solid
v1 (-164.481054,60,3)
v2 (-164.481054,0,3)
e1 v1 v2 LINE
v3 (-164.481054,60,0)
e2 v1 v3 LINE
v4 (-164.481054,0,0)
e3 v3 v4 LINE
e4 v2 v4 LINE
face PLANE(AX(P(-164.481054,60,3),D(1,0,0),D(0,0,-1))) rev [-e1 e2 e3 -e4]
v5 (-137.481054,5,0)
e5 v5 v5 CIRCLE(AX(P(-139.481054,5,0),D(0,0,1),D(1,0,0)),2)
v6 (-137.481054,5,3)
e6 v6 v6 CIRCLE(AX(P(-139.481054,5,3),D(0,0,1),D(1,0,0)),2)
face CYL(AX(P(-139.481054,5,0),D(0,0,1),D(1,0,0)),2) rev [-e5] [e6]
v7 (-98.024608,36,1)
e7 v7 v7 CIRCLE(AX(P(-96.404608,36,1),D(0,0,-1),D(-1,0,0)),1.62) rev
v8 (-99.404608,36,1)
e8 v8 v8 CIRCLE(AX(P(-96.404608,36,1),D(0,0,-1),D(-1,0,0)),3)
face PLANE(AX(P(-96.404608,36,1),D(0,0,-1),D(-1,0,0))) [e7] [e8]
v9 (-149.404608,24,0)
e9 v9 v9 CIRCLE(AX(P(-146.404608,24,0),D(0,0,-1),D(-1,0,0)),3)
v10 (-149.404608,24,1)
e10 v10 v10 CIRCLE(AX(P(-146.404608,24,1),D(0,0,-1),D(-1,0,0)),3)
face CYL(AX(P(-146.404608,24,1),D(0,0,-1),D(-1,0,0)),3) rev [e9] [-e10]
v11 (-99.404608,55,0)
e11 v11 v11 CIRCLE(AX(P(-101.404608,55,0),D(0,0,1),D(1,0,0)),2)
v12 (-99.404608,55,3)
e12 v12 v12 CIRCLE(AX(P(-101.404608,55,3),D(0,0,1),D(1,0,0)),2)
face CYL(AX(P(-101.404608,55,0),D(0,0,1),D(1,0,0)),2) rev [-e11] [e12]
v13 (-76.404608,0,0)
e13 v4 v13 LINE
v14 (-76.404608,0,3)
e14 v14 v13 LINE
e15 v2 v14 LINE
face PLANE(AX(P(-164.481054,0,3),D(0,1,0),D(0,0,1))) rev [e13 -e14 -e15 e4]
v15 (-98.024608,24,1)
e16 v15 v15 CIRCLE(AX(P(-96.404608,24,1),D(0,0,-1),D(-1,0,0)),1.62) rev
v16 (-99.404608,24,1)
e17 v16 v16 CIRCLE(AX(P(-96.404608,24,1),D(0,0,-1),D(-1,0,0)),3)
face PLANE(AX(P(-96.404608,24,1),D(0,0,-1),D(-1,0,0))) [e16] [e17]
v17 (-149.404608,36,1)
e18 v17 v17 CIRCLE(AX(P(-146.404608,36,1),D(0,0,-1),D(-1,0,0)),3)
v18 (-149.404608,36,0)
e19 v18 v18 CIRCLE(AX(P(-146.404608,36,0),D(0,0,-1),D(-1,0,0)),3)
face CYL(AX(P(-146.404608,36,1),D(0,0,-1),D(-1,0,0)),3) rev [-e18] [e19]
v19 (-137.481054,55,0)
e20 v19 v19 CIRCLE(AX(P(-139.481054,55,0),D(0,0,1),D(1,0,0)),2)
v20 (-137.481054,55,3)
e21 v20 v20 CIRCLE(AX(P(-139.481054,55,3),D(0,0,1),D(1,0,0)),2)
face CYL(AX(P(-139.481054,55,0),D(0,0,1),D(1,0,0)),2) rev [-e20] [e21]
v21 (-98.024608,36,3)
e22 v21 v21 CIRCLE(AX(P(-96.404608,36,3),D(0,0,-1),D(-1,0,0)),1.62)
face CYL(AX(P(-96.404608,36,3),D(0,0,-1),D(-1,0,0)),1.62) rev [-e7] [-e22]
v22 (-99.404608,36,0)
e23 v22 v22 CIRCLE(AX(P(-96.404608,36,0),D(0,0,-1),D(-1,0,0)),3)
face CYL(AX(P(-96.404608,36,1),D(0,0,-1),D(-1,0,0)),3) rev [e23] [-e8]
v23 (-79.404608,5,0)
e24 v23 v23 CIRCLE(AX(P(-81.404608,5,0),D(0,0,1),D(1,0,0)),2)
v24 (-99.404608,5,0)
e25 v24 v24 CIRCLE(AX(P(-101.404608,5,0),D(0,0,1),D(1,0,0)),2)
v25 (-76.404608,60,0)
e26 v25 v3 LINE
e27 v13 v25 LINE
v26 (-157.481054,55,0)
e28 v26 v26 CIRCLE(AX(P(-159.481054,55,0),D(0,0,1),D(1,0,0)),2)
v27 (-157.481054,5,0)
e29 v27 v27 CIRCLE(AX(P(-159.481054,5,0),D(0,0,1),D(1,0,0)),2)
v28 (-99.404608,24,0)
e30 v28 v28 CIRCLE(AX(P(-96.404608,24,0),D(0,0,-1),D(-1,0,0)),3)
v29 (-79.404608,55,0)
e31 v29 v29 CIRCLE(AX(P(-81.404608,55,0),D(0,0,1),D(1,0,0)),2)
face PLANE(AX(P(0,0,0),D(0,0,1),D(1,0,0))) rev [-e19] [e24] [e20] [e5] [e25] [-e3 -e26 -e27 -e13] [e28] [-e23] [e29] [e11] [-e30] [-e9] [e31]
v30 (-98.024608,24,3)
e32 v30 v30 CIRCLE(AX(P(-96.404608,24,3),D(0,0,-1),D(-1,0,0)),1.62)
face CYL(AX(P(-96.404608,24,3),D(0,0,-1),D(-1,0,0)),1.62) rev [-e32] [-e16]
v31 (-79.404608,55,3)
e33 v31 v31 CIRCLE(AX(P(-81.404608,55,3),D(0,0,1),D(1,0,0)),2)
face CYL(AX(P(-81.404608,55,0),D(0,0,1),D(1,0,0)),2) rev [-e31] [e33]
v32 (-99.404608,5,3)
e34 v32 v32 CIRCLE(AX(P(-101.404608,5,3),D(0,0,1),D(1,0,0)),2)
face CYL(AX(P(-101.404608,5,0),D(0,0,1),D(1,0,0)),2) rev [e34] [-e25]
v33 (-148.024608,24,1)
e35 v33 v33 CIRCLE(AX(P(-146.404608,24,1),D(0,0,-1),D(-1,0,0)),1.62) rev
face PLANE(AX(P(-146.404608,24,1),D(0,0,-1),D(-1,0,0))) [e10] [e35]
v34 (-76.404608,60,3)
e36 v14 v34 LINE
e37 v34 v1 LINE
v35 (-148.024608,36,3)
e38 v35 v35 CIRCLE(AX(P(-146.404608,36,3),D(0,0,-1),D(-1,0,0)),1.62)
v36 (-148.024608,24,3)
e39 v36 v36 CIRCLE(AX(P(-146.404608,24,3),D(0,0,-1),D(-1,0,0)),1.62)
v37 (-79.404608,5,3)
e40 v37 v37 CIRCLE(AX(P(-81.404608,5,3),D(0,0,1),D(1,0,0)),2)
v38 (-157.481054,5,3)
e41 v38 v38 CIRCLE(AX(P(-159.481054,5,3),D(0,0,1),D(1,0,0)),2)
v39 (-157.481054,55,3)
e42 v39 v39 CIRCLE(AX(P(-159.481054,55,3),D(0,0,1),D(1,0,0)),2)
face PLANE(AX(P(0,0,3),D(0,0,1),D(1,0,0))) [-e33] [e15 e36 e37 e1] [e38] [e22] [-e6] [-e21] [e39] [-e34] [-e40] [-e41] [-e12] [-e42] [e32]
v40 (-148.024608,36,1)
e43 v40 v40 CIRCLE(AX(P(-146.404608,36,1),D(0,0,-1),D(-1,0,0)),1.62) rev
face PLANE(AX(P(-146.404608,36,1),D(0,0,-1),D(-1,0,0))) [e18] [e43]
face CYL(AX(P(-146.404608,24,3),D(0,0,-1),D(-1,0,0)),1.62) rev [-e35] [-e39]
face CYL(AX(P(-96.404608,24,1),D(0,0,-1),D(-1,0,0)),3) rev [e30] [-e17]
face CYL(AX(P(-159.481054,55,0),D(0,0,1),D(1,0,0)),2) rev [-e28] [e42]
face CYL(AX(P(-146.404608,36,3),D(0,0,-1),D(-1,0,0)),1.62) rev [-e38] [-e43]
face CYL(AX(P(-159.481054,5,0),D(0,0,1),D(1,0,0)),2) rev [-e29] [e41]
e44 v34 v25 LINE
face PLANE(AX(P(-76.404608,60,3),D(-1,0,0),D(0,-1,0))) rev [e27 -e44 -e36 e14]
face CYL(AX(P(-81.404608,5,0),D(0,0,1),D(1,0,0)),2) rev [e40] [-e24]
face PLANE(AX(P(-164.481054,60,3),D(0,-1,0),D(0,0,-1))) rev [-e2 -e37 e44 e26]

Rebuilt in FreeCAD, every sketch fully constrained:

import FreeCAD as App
import Part
import Sketcher

V = App.Vector
Q = App.Units.Quantity


def add_polygon(sketch, points):
    """Adds a closed chain of lines whose ends are joined by coincident constraints."""
    first, n = sketch.GeometryCount, len(points)
    for a, b in zip(points, points[1:] + points[:1]):
        sketch.addGeometry(Part.LineSegment(App.Vector(*a, 0), App.Vector(*b, 0)), False)
    for i in range(n):
        sketch.addConstraint(Sketcher.Constraint("Coincident", first + i, 2, first + (i + 1) % n, 1))

doc = App.newDocument("Part")
params = doc.addObject("Spreadsheet::Sheet", "Params")
for row, (alias, value) in enumerate([
    ("sketch1_height", "60 mm"),
    ("pad1_length", "3 mm"),
    ("sketch2_diameter", "4 mm"),
    ("pocket1_length", "3 mm"),
    ("sketch3_diameter", "3.24 mm"),
    ("pocket2_length", "3 mm"),
    ("sketch4_diameter", "6 mm"),
    ("pocket3_length", "1 mm"),
], start=1):
    params.set(f"A{row}", alias)
    params.set(f"B{row}", "=" + value)
    params.setAlias(f"B{row}", alias)

body = doc.addObject("PartDesign::Body", "Body")

# Sketch on XY plane
sketch1 = body.newObject("Sketcher::SketchObject", "Sketch")
sketch1.AttachmentSupport = (doc.getObject("XY_Plane"), [""])
sketch1.MapMode = "FlatFace"
add_polygon(sketch1, [(-164, 60), (-164, 0), (-76, 0), (-76, 60)])  # lines 0-3
sketch1.addConstraint([
    Sketcher.Constraint("Vertical", 0),
    Sketcher.Constraint("Horizontal", 1),
    Sketcher.Constraint("Vertical", 2),
    Sketcher.Constraint("Horizontal", 3),
    Sketcher.Constraint("PointOnObject", 0, 2, -1),
    Sketcher.Constraint("DistanceY", 0, 2, 0, 1, Q("60 mm")),
    Sketcher.Constraint("DistanceX", 1, 1, 1, 2, Q("88.076447 mm")),
    Sketcher.Constraint("DistanceX", 0, 2, -1, 1, Q("164.481054 mm")),
])
sketch1.setExpression("Constraints[9]", "Params.sketch1_height")
pad1 = body.newObject("PartDesign::Pad", "Pad")
pad1.Profile = sketch1
pad1.setExpression("Length", "Params.pad1_length")

# Sketch on XY plane
sketch2 = body.newObject("Sketcher::SketchObject", "Sketch001")
sketch2.AttachmentSupport = (doc.getObject("XY_Plane"), [""])
sketch2.MapMode = "FlatFace"
sketch2.AttachmentOffset = App.Placement(V(0, 0, 3), App.Rotation())
sketch2.addGeometry([
    Part.Circle(V(-159.5, 5, 0), V(0, 0, 1), 2),  # 0
    Part.Circle(V(-159.5, 55, 0), V(0, 0, 1), 2),  # 1
    Part.Circle(V(-139.5, 5, 0), V(0, 0, 1), 2),  # 2
    Part.Circle(V(-139.5, 55, 0), V(0, 0, 1), 2),  # 3
    Part.Circle(V(-81.4, 5, 0), V(0, 0, 1), 2),  # 4
    Part.Circle(V(-81.4, 55, 0), V(0, 0, 1), 2),  # 5
    Part.Circle(V(-101.4, 55, 0), V(0, 0, 1), 2),  # 6
    Part.Circle(V(-101.4, 5, 0), V(0, 0, 1), 2),  # 7
], False)
sketch2.addConstraint([
    Sketcher.Constraint("Equal", 0, 1),
    Sketcher.Constraint("Equal", 1, 2),
    Sketcher.Constraint("Equal", 2, 3),
    Sketcher.Constraint("Equal", 3, 4),
    Sketcher.Constraint("Equal", 4, 5),
    Sketcher.Constraint("Equal", 5, 6),
    Sketcher.Constraint("Equal", 6, 7),
    Sketcher.Constraint("Horizontal", 0, 3, 2, 3),
    Sketcher.Constraint("Horizontal", 1, 3, 3, 3),
    Sketcher.Constraint("Horizontal", 2, 3, 4, 3),
    Sketcher.Constraint("Horizontal", 3, 3, 5, 3),
    Sketcher.Constraint("Horizontal", 5, 3, 6, 3),
    Sketcher.Constraint("Horizontal", 4, 3, 7, 3),
    Sketcher.Constraint("Vertical", 0, 3, 1, 3),
    Sketcher.Constraint("Vertical", 2, 3, 3, 3),
    Sketcher.Constraint("Vertical", 4, 3, 5, 3),
    Sketcher.Constraint("Vertical", 6, 3, 7, 3),
    Sketcher.Constraint("Diameter", 0, Q("4 mm")),
    Sketcher.Constraint("DistanceY", -1, 1, 0, 3, Q("5 mm")),
    Sketcher.Constraint("DistanceY", -1, 1, 1, 3, Q("55 mm")),
    Sketcher.Constraint("DistanceX", 0, 3, 2, 3, Q("20 mm")),
    Sketcher.Constraint("DistanceX", 6, 3, 5, 3, Q("20 mm")),
    Sketcher.Constraint("DistanceX", 0, 3, -1, 1, Q("159.481054 mm")),
    Sketcher.Constraint("DistanceX", 4, 3, -1, 1, Q("81.404608 mm")),
])
sketch2.setExpression("Constraints[17]", "Params.sketch2_diameter")
pocket1 = body.newObject("PartDesign::Pocket", "Pocket")
pocket1.Profile = sketch2
pocket1.setExpression("Length", "Params.pocket1_length")

# Sketch on XY plane
sketch3 = body.newObject("Sketcher::SketchObject", "Sketch002")
sketch3.AttachmentSupport = (doc.getObject("XY_Plane"), [""])
sketch3.MapMode = "FlatFace"
sketch3.addGeometry([
    Part.Circle(V(-96.4, 36, 0), V(0, 0, 1), 1.6),
    Part.Circle(V(-96.4, 24, 0), V(0, 0, 1), 1.6),
    Part.Circle(V(-146.4, 36, 0), V(0, 0, 1), 1.6),
    Part.Circle(V(-146.4, 24, 0), V(0, 0, 1), 1.6),
], False)
sketch3.addConstraint([
    Sketcher.Constraint("Equal", 0, 1),
    Sketcher.Constraint("Equal", 1, 2),
    Sketcher.Constraint("Equal", 2, 3),
    Sketcher.Constraint("Horizontal", 0, 3, 2, 3),
    Sketcher.Constraint("Horizontal", 1, 3, 3, 3),
    Sketcher.Constraint("Vertical", 0, 3, 1, 3),
    Sketcher.Constraint("Vertical", 2, 3, 3, 3),
    Sketcher.Constraint("Diameter", 0, Q("3.24 mm")),
    Sketcher.Constraint("DistanceY", -1, 1, 0, 3, Q("36 mm")),
    Sketcher.Constraint("DistanceY", -1, 1, 1, 3, Q("24 mm")),
    Sketcher.Constraint("DistanceX", 2, 3, 0, 3, Q("50 mm")),
    Sketcher.Constraint("DistanceX", 0, 3, -1, 1, Q("96.404608 mm")),
])
sketch3.setExpression("Constraints[7]", "Params.sketch3_diameter")
pocket2 = body.newObject("PartDesign::Pocket", "Pocket001")
pocket2.Profile = sketch3
pocket2.setExpression("Length", "Params.pocket2_length")
pocket2.Reversed = True

# Sketch on XY plane
sketch4 = body.newObject("Sketcher::SketchObject", "Sketch003")
sketch4.AttachmentSupport = (doc.getObject("XY_Plane"), [""])
sketch4.MapMode = "FlatFace"
sketch4.addGeometry([
    Part.Circle(V(-96.4, 36, 0), V(0, 0, 1), 3),
    Part.Circle(V(-96.4, 24, 0), V(0, 0, 1), 3),
    Part.Circle(V(-146.4, 36, 0), V(0, 0, 1), 3),
    Part.Circle(V(-146.4, 24, 0), V(0, 0, 1), 3),
], False)
sketch4.addConstraint([
    Sketcher.Constraint("Equal", 0, 1),
    Sketcher.Constraint("Equal", 1, 2),
    Sketcher.Constraint("Equal", 2, 3),
    Sketcher.Constraint("Horizontal", 0, 3, 2, 3),
    Sketcher.Constraint("Horizontal", 1, 3, 3, 3),
    Sketcher.Constraint("Vertical", 0, 3, 1, 3),
    Sketcher.Constraint("Vertical", 2, 3, 3, 3),
    Sketcher.Constraint("Diameter", 0, Q("6 mm")),
    Sketcher.Constraint("DistanceY", -1, 1, 0, 3, Q("36 mm")),
    Sketcher.Constraint("DistanceY", -1, 1, 1, 3, Q("24 mm")),
    Sketcher.Constraint("DistanceX", 2, 3, 0, 3, Q("50 mm")),
    Sketcher.Constraint("DistanceX", 0, 3, -1, 1, Q("96.404608 mm")),
])
sketch4.setExpression("Constraints[7]", "Params.sketch4_diameter")
pocket3 = body.newObject("PartDesign::Pocket", "Pocket002")
pocket3.Profile = sketch4
pocket3.setExpression("Length", "Params.pocket3_length")
pocket3.Reversed = True

doc.recompute()
